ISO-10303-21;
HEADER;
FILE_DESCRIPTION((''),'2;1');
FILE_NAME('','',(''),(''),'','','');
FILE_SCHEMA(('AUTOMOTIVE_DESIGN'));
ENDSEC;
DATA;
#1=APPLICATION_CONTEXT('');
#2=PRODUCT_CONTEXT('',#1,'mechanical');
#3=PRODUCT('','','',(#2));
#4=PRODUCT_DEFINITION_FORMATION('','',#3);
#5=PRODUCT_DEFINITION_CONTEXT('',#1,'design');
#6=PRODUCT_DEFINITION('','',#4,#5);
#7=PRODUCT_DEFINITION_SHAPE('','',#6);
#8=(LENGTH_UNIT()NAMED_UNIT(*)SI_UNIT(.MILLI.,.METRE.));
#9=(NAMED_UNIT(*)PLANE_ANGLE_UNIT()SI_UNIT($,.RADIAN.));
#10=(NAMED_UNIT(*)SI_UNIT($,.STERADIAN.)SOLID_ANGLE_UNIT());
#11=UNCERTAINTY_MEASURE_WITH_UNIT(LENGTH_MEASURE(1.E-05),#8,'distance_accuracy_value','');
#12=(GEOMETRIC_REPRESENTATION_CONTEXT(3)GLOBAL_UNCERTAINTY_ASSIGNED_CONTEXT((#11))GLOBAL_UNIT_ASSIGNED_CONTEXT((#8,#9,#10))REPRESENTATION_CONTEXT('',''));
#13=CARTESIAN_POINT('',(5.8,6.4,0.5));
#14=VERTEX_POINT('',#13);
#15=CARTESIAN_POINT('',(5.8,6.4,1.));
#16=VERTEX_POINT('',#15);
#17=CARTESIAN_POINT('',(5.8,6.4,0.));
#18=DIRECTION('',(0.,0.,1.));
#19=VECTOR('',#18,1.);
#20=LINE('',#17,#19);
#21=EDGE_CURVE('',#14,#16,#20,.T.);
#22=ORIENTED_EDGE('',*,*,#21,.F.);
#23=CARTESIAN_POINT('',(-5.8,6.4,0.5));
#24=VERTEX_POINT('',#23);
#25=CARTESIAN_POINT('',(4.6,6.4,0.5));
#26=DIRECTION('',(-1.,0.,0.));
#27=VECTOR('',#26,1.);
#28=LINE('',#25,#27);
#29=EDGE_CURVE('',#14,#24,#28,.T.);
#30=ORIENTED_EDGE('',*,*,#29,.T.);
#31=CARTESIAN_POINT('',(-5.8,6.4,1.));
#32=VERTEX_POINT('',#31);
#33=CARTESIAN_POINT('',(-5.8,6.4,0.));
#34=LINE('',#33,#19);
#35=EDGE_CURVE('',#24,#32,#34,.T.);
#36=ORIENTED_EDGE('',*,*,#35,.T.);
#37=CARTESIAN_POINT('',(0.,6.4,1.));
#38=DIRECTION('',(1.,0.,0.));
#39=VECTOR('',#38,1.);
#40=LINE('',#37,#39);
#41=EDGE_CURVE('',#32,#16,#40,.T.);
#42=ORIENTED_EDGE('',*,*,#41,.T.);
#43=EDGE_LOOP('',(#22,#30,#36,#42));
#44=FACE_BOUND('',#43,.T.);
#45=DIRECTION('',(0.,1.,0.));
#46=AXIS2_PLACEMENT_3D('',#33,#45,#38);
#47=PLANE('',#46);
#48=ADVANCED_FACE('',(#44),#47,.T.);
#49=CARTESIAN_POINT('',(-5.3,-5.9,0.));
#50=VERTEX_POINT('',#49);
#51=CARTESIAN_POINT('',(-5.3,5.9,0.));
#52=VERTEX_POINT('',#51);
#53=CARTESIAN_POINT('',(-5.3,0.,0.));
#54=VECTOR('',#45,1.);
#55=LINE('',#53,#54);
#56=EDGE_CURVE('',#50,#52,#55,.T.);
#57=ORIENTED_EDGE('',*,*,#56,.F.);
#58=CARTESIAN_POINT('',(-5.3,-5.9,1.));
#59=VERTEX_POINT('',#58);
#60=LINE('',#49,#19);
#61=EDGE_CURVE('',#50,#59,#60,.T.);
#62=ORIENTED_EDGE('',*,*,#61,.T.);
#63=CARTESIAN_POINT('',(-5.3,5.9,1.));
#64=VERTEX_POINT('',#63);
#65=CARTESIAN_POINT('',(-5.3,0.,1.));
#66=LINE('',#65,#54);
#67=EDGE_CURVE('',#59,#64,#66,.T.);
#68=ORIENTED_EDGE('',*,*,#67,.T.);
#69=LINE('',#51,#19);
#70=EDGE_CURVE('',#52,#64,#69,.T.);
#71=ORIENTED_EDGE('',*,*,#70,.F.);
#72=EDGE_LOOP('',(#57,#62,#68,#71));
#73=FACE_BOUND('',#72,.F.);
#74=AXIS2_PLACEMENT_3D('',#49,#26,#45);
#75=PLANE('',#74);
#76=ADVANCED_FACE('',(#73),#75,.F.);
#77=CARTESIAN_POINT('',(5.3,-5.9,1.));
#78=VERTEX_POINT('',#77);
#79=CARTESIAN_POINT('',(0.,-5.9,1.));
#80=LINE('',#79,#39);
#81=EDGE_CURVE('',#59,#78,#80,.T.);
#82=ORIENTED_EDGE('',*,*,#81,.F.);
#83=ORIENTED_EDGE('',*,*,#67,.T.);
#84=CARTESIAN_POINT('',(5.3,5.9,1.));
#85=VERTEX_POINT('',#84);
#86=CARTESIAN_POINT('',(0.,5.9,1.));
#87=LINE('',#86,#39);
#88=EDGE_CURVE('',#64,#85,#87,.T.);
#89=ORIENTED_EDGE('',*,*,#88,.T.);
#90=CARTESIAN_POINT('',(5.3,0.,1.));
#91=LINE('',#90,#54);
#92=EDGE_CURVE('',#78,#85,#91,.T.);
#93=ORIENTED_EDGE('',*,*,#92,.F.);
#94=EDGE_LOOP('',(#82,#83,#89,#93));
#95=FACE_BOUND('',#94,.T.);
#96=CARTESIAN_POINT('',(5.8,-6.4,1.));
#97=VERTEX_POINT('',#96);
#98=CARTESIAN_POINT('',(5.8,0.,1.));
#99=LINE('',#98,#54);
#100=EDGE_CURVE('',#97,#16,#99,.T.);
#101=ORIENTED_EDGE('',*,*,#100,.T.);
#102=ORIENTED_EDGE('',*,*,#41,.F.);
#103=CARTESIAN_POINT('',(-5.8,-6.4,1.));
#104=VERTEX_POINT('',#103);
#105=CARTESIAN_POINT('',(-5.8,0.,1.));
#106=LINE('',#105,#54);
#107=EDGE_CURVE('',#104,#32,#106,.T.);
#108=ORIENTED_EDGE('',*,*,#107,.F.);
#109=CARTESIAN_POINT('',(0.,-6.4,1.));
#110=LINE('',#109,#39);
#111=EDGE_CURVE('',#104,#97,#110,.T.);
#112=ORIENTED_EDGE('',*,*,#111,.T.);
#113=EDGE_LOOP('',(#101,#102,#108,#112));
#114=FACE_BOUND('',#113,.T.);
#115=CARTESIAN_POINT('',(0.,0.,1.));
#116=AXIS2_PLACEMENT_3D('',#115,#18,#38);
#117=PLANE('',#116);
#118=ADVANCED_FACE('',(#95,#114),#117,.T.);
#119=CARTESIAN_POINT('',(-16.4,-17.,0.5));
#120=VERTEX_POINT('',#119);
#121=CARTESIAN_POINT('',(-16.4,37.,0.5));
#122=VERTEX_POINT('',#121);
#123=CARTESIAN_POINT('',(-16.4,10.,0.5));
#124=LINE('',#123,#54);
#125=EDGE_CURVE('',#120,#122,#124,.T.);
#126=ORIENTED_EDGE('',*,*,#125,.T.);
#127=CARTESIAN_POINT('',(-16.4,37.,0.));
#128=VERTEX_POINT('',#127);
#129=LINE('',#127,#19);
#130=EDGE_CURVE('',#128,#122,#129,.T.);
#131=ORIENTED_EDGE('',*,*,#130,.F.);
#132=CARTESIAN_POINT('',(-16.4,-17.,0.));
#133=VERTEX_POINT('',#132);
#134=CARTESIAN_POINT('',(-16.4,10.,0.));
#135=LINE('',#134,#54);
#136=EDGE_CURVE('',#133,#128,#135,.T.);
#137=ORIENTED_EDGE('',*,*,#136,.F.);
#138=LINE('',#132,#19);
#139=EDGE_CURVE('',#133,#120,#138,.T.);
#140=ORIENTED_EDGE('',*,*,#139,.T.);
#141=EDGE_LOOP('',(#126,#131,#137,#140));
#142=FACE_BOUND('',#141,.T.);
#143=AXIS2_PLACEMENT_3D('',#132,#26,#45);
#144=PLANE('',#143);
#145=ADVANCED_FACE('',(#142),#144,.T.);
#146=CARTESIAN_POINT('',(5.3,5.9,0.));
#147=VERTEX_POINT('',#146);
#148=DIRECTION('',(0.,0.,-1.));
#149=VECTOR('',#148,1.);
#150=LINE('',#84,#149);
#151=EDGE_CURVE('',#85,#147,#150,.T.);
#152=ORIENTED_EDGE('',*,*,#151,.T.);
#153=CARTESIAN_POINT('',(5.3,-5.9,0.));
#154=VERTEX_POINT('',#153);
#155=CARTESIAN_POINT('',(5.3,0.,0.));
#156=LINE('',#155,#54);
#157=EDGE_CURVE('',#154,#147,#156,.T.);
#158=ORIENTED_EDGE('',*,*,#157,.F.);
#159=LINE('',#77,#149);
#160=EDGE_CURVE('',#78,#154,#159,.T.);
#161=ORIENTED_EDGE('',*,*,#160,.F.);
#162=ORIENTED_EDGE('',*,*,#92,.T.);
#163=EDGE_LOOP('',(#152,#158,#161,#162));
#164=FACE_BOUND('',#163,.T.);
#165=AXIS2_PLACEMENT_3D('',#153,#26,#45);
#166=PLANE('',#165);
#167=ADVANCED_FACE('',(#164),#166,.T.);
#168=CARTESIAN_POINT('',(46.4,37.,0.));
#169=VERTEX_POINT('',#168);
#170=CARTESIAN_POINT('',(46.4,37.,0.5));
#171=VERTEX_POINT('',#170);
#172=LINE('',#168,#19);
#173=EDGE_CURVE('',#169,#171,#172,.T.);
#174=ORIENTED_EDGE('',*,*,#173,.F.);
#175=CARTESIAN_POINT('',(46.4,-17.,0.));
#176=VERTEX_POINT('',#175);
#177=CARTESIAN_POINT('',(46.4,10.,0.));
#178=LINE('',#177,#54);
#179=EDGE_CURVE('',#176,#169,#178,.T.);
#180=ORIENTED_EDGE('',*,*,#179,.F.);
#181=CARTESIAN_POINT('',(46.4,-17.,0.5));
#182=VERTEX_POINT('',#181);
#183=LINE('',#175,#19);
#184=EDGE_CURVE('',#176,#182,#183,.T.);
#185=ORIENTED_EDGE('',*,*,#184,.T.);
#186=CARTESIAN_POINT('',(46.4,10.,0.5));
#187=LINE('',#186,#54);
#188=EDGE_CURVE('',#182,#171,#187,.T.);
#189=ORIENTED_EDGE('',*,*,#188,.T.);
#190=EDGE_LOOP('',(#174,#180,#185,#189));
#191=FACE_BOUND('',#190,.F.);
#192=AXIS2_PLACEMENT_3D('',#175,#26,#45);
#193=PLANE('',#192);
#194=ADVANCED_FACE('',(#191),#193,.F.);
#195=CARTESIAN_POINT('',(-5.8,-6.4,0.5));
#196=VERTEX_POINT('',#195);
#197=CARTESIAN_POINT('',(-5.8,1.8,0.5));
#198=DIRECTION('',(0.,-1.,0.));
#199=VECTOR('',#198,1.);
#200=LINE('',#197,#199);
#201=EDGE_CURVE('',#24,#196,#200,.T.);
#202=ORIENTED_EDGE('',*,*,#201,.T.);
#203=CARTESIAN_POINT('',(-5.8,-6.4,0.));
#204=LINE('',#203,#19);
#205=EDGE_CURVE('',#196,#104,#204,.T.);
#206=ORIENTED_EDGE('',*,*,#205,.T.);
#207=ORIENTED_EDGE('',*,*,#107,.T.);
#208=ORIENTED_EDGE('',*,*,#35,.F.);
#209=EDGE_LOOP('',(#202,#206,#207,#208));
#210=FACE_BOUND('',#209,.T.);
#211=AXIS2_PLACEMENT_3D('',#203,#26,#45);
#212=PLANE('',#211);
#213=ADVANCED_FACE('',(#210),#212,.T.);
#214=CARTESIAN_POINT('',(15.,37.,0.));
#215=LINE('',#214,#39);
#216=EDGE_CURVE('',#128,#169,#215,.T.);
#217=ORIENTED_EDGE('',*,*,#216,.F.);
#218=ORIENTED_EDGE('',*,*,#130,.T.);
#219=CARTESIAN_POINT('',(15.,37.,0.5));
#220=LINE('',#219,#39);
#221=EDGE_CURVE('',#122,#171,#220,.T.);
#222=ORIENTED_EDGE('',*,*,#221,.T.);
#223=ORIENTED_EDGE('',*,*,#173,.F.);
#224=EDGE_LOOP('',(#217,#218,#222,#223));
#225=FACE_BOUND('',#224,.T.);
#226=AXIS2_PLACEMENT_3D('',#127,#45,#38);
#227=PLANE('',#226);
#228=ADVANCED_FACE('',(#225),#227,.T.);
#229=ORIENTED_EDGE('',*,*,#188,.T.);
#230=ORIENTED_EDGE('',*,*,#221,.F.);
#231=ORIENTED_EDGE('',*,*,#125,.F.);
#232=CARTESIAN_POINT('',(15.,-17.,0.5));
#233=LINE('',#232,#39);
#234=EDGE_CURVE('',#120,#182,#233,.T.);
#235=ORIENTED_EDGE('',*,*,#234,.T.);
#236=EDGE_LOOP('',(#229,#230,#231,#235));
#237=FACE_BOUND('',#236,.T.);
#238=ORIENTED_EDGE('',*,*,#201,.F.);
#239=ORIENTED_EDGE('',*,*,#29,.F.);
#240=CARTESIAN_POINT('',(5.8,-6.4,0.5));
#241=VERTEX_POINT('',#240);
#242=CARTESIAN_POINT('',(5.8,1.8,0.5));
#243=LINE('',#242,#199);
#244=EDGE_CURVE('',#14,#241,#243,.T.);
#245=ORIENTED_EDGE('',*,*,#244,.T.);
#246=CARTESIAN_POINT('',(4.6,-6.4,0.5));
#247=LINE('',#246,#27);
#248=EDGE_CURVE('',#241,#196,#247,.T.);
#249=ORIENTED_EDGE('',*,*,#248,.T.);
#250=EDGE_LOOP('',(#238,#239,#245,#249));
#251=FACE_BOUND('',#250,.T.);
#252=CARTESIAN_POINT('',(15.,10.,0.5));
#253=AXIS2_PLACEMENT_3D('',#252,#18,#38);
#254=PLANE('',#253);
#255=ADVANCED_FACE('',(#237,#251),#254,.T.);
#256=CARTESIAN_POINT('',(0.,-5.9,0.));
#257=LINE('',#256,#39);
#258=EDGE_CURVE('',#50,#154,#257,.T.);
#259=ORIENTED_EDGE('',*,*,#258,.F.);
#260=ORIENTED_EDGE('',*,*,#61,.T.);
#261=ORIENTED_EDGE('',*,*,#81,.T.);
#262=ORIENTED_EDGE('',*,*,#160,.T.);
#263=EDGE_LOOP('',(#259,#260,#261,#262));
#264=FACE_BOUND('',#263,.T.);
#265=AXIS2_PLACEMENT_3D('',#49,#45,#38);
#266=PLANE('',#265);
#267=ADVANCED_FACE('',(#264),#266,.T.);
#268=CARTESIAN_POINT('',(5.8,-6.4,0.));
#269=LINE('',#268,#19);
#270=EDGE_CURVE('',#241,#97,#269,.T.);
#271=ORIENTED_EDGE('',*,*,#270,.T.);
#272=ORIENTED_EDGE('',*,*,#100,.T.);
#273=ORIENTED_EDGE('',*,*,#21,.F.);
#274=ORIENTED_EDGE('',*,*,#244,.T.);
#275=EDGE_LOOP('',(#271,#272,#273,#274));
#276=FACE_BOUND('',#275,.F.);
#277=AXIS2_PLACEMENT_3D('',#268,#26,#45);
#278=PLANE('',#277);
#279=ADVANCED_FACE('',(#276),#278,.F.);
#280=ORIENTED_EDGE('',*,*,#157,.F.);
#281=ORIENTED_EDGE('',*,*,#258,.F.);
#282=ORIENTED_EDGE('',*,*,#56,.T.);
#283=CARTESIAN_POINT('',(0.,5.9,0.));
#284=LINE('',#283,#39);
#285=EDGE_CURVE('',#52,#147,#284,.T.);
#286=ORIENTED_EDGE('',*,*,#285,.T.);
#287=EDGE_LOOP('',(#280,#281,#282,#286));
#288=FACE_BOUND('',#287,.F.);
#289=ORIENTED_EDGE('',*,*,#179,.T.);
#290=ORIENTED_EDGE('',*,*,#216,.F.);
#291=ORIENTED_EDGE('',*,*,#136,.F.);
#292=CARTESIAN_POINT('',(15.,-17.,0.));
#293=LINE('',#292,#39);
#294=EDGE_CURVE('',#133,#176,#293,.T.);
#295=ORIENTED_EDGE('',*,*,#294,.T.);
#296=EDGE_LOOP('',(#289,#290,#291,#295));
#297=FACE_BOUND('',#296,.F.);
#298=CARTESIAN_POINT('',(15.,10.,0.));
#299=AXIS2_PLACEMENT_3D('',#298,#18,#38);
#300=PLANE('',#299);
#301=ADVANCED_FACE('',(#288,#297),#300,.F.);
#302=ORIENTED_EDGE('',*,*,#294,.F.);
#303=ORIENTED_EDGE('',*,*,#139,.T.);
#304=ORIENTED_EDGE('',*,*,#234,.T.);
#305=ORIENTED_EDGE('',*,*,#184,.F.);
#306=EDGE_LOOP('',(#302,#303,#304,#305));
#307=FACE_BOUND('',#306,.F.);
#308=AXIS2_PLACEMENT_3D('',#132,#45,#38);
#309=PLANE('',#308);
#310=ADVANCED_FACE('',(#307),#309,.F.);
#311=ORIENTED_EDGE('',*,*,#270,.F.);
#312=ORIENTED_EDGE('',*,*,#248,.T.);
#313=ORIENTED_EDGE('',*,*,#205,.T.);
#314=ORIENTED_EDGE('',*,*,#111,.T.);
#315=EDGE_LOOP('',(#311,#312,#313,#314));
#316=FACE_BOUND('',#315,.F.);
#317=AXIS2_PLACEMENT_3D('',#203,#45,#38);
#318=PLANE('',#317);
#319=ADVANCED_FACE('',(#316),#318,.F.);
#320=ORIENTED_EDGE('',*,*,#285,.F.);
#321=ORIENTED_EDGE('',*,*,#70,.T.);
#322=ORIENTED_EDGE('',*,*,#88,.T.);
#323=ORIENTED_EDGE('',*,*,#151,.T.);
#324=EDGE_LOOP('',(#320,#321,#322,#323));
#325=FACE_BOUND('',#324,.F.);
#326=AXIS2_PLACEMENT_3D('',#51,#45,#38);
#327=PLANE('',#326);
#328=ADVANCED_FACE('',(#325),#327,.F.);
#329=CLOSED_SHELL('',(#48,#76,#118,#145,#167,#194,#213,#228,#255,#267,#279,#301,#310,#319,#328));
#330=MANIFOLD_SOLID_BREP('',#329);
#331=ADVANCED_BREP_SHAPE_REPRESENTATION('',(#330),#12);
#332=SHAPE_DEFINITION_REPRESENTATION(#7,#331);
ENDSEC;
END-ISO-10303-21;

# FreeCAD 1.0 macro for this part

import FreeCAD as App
import Part
import Sketcher

V = App.Vector
Q = App.Units.Quantity


def add_polygon(sketch, points):
    """Adds a closed chain of lines whose ends are joined by coincident constraints."""
    first, n = sketch.GeometryCount, len(points)
    for a, b in zip(points, points[1:] + points[:1]):
        sketch.addGeometry(Part.LineSegment(App.Vector(*a, 0), App.Vector(*b, 0)), False)
    for i in range(n):
        sketch.addConstraint(Sketcher.Constraint("Coincident", first + i, 2, first + (i + 1) % n, 1))

doc = App.newDocument("Part")
body = doc.addObject("PartDesign::Body", "Body")

# Sketch on XY plane
sketch1 = doc.addObject("Sketcher::SketchObject", "Sketch")
body.addObject(sketch1)
sketch1.AttachmentSupport = (doc.XY_Plane, [""])
sketch1.MapMode = "FlatFace"
add_polygon(sketch1, [(-16, 37), (-16, -17), (46, -17), (46, 37)])  # lines 0-3
add_polygon(sketch1, [(5, -6), (-5, -6), (-5, 6), (5, 6)])  # lines 4-7
sketch1.addConstraint([
    Sketcher.Constraint("Vertical", 0),
    Sketcher.Constraint("Horizontal", 1),
    Sketcher.Constraint("Vertical", 2),
    Sketcher.Constraint("Horizontal", 3),
    Sketcher.Constraint("Horizontal", 4),
    Sketcher.Constraint("Vertical", 5),
    Sketcher.Constraint("Horizontal", 6),
    Sketcher.Constraint("Vertical", 7),
    Sketcher.Constraint("Symmetric", 4, 2, 6, 2, -1, 1),
    Sketcher.Constraint("DistanceY", 0, 2, 0, 1, Q("54 mm")),
    Sketcher.Constraint("DistanceX", 1, 1, 1, 2, Q("62.8 mm")),
    Sketcher.Constraint("DistanceX", 4, 2, 4, 1, Q("10.6 mm")),
    Sketcher.Constraint("DistanceY", 5, 1, 5, 2, Q("11.8 mm")),
    Sketcher.Constraint("DistanceY", 0, 2, -1, 1, Q("17 mm")),
    Sketcher.Constraint("DistanceX", 0, 2, -1, 1, Q("16.4 mm")),
])
pad1 = doc.addObject("PartDesign::Pad", "Pad")
body.addObject(pad1)
pad1.Profile = sketch1
pad1.Length = 0.5

# Sketch on XY plane
sketch2 = doc.addObject("Sketcher::SketchObject", "Sketch001")
body.addObject(sketch2)
sketch2.AttachmentSupport = (doc.XY_Plane, [""])
sketch2.MapMode = "FlatFace"
add_polygon(sketch2, [(-6, 6), (-6, -6), (6, -6), (6, 6)])  # lines 0-3
add_polygon(sketch2, [(5, -6), (-5, -6), (-5, 6), (5, 6)])  # lines 4-7
sketch2.addConstraint([
    Sketcher.Constraint("Vertical", 0),
    Sketcher.Constraint("Horizontal", 1),
    Sketcher.Constraint("Vertical", 2),
    Sketcher.Constraint("Horizontal", 3),
    Sketcher.Constraint("Horizontal", 4),
    Sketcher.Constraint("Vertical", 5),
    Sketcher.Constraint("Horizontal", 6),
    Sketcher.Constraint("Vertical", 7),
    Sketcher.Constraint("Symmetric", 0, 2, 2, 2, -1, 1),
    Sketcher.Constraint("Symmetric", 4, 2, 6, 2, -1, 1),
    Sketcher.Constraint("DistanceX", 1, 1, 1, 2, Q("11.6 mm")),
    Sketcher.Constraint("DistanceX", 4, 2, 4, 1, Q("10.6 mm")),
    Sketcher.Constraint("DistanceY", 0, 2, 0, 1, Q("12.8 mm")),
    Sketcher.Constraint("DistanceY", 5, 1, 5, 2, Q("11.8 mm")),
])
pad2 = doc.addObject("PartDesign::Pad", "Pad001")
body.addObject(pad2)
pad2.Profile = sketch2
pad2.Length = 1

doc.recompute()
